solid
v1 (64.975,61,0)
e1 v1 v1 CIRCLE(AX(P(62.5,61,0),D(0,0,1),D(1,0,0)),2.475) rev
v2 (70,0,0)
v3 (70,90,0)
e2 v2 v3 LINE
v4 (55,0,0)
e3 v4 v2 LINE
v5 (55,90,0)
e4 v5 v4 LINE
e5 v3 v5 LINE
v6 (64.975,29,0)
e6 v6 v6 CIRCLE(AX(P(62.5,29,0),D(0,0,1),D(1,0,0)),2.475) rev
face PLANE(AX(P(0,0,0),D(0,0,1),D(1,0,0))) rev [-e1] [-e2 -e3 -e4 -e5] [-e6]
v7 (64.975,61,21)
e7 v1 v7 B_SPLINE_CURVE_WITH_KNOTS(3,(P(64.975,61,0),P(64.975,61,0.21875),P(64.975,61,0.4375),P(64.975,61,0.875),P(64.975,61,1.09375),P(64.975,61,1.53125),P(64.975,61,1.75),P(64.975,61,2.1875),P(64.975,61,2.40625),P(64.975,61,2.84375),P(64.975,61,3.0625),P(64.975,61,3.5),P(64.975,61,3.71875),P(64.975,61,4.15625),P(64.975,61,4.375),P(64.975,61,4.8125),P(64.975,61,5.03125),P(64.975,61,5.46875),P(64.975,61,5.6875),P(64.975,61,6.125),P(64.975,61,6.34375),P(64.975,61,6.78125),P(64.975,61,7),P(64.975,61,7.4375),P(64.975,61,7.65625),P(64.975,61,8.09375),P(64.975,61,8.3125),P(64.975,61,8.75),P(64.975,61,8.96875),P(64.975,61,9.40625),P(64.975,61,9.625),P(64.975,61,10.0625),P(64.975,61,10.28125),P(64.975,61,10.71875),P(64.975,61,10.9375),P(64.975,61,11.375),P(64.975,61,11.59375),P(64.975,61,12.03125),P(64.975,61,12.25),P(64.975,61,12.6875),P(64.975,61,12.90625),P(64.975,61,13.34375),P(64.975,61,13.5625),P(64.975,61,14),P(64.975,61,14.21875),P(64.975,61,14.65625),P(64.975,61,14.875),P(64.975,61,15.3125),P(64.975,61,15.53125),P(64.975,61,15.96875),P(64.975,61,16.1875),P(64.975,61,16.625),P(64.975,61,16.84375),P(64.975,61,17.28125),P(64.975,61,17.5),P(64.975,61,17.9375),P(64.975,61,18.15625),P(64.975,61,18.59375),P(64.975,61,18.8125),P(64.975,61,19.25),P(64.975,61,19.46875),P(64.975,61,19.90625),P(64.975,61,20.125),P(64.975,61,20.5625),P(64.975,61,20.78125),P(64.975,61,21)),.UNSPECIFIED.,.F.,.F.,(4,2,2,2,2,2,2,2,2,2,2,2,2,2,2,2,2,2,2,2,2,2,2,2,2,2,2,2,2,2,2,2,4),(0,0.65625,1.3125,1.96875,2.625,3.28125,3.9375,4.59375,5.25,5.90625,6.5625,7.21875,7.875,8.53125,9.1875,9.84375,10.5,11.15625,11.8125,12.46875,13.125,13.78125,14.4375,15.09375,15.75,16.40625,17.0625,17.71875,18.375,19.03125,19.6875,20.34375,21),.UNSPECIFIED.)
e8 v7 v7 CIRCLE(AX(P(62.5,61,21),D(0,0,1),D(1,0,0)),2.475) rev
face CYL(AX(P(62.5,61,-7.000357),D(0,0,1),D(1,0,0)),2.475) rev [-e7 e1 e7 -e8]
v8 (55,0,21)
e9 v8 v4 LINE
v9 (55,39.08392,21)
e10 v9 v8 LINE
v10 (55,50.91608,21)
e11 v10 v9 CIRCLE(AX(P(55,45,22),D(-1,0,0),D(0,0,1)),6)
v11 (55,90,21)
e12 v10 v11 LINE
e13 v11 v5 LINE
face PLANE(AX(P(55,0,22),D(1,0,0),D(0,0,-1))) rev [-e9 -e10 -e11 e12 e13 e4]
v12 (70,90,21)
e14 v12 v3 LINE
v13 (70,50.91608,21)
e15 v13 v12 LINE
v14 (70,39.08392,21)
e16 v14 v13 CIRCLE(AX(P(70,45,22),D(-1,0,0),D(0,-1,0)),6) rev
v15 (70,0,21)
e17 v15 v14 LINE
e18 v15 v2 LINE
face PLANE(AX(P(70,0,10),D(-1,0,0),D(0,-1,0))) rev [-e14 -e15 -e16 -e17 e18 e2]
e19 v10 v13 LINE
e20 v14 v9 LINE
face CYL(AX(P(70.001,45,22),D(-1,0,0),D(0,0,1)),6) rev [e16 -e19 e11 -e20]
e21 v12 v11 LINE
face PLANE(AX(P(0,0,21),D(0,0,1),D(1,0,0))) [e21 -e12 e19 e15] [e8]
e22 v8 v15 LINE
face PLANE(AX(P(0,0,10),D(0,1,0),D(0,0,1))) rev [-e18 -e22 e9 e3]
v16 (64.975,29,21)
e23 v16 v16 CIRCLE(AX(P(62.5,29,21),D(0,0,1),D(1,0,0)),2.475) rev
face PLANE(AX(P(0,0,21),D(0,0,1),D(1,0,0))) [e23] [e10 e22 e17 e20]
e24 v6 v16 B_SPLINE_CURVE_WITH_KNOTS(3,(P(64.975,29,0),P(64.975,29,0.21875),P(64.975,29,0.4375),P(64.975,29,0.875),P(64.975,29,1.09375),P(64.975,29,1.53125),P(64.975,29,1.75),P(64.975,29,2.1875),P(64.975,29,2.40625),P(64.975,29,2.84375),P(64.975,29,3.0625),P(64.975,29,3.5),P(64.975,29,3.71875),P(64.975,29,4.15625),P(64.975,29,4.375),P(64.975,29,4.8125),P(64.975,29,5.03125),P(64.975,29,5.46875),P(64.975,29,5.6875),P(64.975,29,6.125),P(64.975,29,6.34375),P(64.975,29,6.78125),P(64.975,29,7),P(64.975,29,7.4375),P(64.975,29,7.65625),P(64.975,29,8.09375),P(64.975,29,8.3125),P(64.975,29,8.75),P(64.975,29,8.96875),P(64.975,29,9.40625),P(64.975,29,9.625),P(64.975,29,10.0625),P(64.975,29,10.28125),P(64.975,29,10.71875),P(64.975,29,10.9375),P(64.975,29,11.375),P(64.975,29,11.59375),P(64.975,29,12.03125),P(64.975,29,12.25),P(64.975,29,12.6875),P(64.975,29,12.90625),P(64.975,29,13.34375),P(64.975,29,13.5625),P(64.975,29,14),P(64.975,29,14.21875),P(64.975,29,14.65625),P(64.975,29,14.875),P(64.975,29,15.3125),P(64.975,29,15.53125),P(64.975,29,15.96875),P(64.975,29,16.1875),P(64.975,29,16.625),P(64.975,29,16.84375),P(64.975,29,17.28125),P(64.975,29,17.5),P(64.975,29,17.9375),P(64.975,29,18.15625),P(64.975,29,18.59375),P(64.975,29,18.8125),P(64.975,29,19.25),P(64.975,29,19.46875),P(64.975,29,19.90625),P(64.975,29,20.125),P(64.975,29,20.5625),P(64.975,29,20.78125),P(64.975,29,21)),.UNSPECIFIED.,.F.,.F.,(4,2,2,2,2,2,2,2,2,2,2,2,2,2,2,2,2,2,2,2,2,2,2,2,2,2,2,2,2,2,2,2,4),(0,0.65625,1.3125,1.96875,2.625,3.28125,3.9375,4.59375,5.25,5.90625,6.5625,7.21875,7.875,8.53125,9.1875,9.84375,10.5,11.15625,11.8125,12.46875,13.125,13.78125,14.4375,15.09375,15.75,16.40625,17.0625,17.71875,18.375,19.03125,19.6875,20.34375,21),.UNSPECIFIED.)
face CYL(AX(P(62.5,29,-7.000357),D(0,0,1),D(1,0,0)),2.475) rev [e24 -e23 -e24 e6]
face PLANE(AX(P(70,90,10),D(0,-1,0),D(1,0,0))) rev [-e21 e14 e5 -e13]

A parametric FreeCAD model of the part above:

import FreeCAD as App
import Part
import Sketcher

V = App.Vector

doc = App.newDocument("Part")
body = doc.addObject("PartDesign::Body", "Body")

# Sketch on XY plane
sketch1 = doc.addObject("Sketcher::SketchObject", "Sketch")
body.addObject(sketch1)
sketch1.AttachmentSupport = (doc.XY_Plane, [""])
sketch1.MapMode = "FlatFace"
sketch1.addGeometry([
    Part.LineSegment(V(0, 90, 0), V(0, 0, 0)),
    Part.LineSegment(V(0, 0, 0), V(70, 0, 0)),
    Part.LineSegment(V(70, 0, 0), V(70, 90, 0)),
    Part.LineSegment(V(70, 90, 0), V(0, 90, 0)),
], False)
sketch1.addConstraint([
    Sketcher.Constraint("Coincident", 0, 2, 1, 1),
    Sketcher.Constraint("Coincident", 1, 2, 2, 1),
    Sketcher.Constraint("Coincident", 2, 2, 3, 1),
    Sketcher.Constraint("Coincident", 3, 2, 0, 1),
    Sketcher.Constraint("Vertical", 0),
    Sketcher.Constraint("Horizontal", 1),
    Sketcher.Constraint("Vertical", 2),
    Sketcher.Constraint("Horizontal", 3),
    Sketcher.Constraint("Coincident", 0, 2, -1, 1),
    Sketcher.Constraint("DistanceX", 1, 1, 1, 2, 70.0),
    Sketcher.Constraint("DistanceY", 0, 2, 0, 1, 90.0),
])
pad1 = doc.addObject("PartDesign::Pad", "Pad")
body.addObject(pad1)
pad1.Profile = sketch1
pad1.Length = 10

# Sketch on XY plane
sketch2 = doc.addObject("Sketcher::SketchObject", "Sketch001")
body.addObject(sketch2)
sketch2.AttachmentSupport = (doc.XY_Plane, [""])
sketch2.MapMode = "FlatFace"
sketch2.AttachmentOffset = App.Placement(V(0, 0, 10), App.Rotation())
sketch2.addGeometry([
    Part.LineSegment(V(55, 90, 0), V(55, 0, 0)),
    Part.LineSegment(V(55, 0, 0), V(70, 0, 0)),
    Part.LineSegment(V(70, 0, 0), V(70, 90, 0)),
    Part.LineSegment(V(70, 90, 0), V(55, 90, 0)),
], False)
sketch2.addConstraint([
    Sketcher.Constraint("Coincident", 0, 2, 1, 1),
    Sketcher.Constraint("Coincident", 1, 2, 2, 1),
    Sketcher.Constraint("Coincident", 2, 2, 3, 1),
    Sketcher.Constraint("Coincident", 3, 2, 0, 1),
    Sketcher.Constraint("Vertical", 0),
    Sketcher.Constraint("Horizontal", 1),
    Sketcher.Constraint("Vertical", 2),
    Sketcher.Constraint("Horizontal", 3),
    Sketcher.Constraint("PointOnObject", 0, 2, -1),
    Sketcher.Constraint("DistanceX", 1, 1, 1, 2, 15.0),
    Sketcher.Constraint("DistanceY", 0, 2, 0, 1, 90.0),
    Sketcher.Constraint("DistanceX", -1, 1, 0, 2, 55.0),
])
pad2 = doc.addObject("PartDesign::Pad", "Pad001")
body.addObject(pad2)
pad2.Profile = sketch2
pad2.Length = 12

# Sketch on XZ plane
sketch3 = doc.addObject("Sketcher::SketchObject", "Sketch002")
body.addObject(sketch3)
sketch3.AttachmentSupport = (doc.XZ_Plane, [""])
sketch3.MapMode = "FlatFace"
sketch3.AttachmentOffset = App.Placement(V(0, 0, -90), App.Rotation())
sketch3.addGeometry([
    Part.LineSegment(V(55, 10, 0), V(6, 10, 0)),
    Part.LineSegment(V(6, 10, 0), V(55, 21, 0)),
    Part.LineSegment(V(55, 21, 0), V(55, 10, 0)),
], False)
sketch3.addConstraint([
    Sketcher.Constraint("Coincident", 0, 2, 1, 1),
    Sketcher.Constraint("Coincident", 1, 2, 2, 1),
    Sketcher.Constraint("Coincident", 2, 2, 0, 1),
    Sketcher.Constraint("Horizontal", 0),
    Sketcher.Constraint("Vertical", 2),
    Sketcher.Constraint("DistanceX", 0, 2, 0, 1, 49.0),
    Sketcher.Constraint("DistanceY", 2, 2, 2, 1, 11.0),
    Sketcher.Constraint("DistanceX", -1, 1, 0, 2, 6.0),
    Sketcher.Constraint("DistanceY", -1, 1, 0, 2, 10.0),
])
pad3 = doc.addObject("PartDesign::Pad", "Pad002")
body.addObject(pad3)
pad3.Profile = sketch3
pad3.Length = 3

# Sketch on XZ plane
sketch4 = doc.addObject("Sketcher::SketchObject", "Sketch003")
body.addObject(sketch4)
sketch4.AttachmentSupport = (doc.XZ_Plane, [""])
sketch4.MapMode = "FlatFace"
sketch4.addGeometry([
    Part.LineSegment(V(55, 21, 0), V(6, 10, 0)),
    Part.LineSegment(V(6, 10, 0), V(55, 10, 0)),
    Part.LineSegment(V(55, 10, 0), V(55, 21, 0)),
], False)
sketch4.addConstraint([
    Sketcher.Constraint("Coincident", 0, 2, 1, 1),
    Sketcher.Constraint("Coincident", 1, 2, 2, 1),
    Sketcher.Constraint("Coincident", 2, 2, 0, 1),
    Sketcher.Constraint("Horizontal", 1),
    Sketcher.Constraint("Vertical", 2),
    Sketcher.Constraint("DistanceX", 1, 1, 1, 2, 49.0),
    Sketcher.Constraint("DistanceY", 2, 1, 2, 2, 11.0),
    Sketcher.Constraint("DistanceX", -1, 1, 0, 2, 6.0),
    Sketcher.Constraint("DistanceY", -1, 1, 0, 2, 10.0),
])
pad4 = doc.addObject("PartDesign::Pad", "Pad003")
body.addObject(pad4)
pad4.Profile = sketch4
pad4.Length = 3
pad4.Reversed = True

# Sketch on YZ plane
sketch5 = doc.addObject("Sketcher::SketchObject", "Sketch004")
body.addObject(sketch5)
sketch5.AttachmentSupport = (doc.YZ_Plane, [""])
sketch5.MapMode = "FlatFace"
sketch5.AttachmentOffset = App.Placement(V(0, 0, 55), App.Rotation())
sketch5.addGeometry(Part.Circle(V(45, 22, 0), V(0, 0, 1), 6), False)
sketch5.addConstraint([
    Sketcher.Constraint("Diameter", 0, 12.0),
    Sketcher.Constraint("DistanceX", -1, 1, 0, 3, 45.0),
    Sketcher.Constraint("DistanceY", -1, 1, 0, 3, 22.0),
])
pocket1 = doc.addObject("PartDesign::Pocket", "Pocket")
body.addObject(pocket1)
pocket1.Profile = sketch5
pocket1.Type = "UpToFirst"
pocket1.Reversed = True

# Sketch on XY plane
sketch6 = doc.addObject("Sketcher::SketchObject", "Sketch005")
body.addObject(sketch6)
sketch6.AttachmentSupport = (doc.XY_Plane, [""])
sketch6.MapMode = "FlatFace"
sketch6.AttachmentOffset = App.Placement(V(0, 0, 22), App.Rotation())
sketch6.addGeometry([
    Part.Circle(V(62.5, 61, 0), V(0, 0, 1), 2.5),
    Part.Circle(V(62.5, 29, 0), V(0, 0, 1), 2.5),
], False)
sketch6.addConstraint([
    Sketcher.Constraint("Equal", 0, 1),
    Sketcher.Constraint("Vertical", 0, 3, 1, 3),
    Sketcher.Constraint("Diameter", 0, 4.95),
    Sketcher.Constraint("DistanceY", -1, 1, 0, 3, 61.0),
    Sketcher.Constraint("DistanceY", -1, 1, 1, 3, 29.0),
    Sketcher.Constraint("DistanceX", -1, 1, 0, 3, 62.5),
])
pocket2 = doc.addObject("PartDesign::Pocket", "Pocket001")
body.addObject(pocket2)
pocket2.Profile = sketch6
pocket2.Length = 22

# Sketch on XY plane
sketch7 = doc.addObject("Sketcher::SketchObject", "Sketch006")
body.addObject(sketch7)
sketch7.AttachmentSupport = (doc.XY_Plane, [""])
sketch7.MapMode = "FlatFace"
sketch7.AttachmentOffset = App.Placement(V(0, 0, 10), App.Rotation())
sketch7.addGeometry([
    Part.Circle(V(3, 29, 0), V(0, 0, 1), 2),
    Part.Circle(V(3, 61, 0), V(0, 0, 1), 2),
], False)
sketch7.addConstraint([
    Sketcher.Constraint("Equal", 0, 1),
    Sketcher.Constraint("Vertical", 0, 3, 1, 3),
    Sketcher.Constraint("Diameter", 0, 3.95),
    Sketcher.Constraint("DistanceX", -1, 1, 0, 3, 3.0),
    Sketcher.Constraint("DistanceY", -1, 1, 0, 3, 29.0),
    Sketcher.Constraint("DistanceY", -1, 1, 1, 3, 61.0),
])
pocket3 = doc.addObject("PartDesign::Pocket", "Pocket002")
body.addObject(pocket3)
pocket3.Profile = sketch7
pocket3.Length = 10

# Sketch on XY plane
sketch8 = doc.addObject("Sketcher::SketchObject", "Sketch007")
body.addObject(sketch8)
sketch8.AttachmentSupport = (doc.XY_Plane, [""])
sketch8.MapMode = "FlatFace"
sketch8.AttachmentOffset = App.Placement(V(0, 0, 22), App.Rotation())
sketch8.addGeometry([
    Part.LineSegment(V(55, 90, 0), V(55, 0, 0)),
    Part.LineSegment(V(55, 0, 0), V(70, 0, 0)),
    Part.LineSegment(V(70, 0, 0), V(70, 90, 0)),
    Part.LineSegment(V(70, 90, 0), V(55, 90, 0)),
], False)
sketch8.addConstraint([
    Sketcher.Constraint("Coincident", 0, 2, 1, 1),
    Sketcher.Constraint("Coincident", 1, 2, 2, 1),
    Sketcher.Constraint("Coincident", 2, 2, 3, 1),
    Sketcher.Constraint("Coincident", 3, 2, 0, 1),
    Sketcher.Constraint("Vertical", 0),
    Sketcher.Constraint("Horizontal", 1),
    Sketcher.Constraint("Vertical", 2),
    Sketcher.Constraint("Horizontal", 3),
    Sketcher.Constraint("PointOnObject", 0, 2, -1),
    Sketcher.Constraint("DistanceX", 1, 1, 1, 2, 15.0),
    Sketcher.Constraint("DistanceY", 0, 2, 0, 1, 90.0),
    Sketcher.Constraint("DistanceX", -1, 1, 0, 2, 55.0),
])
pocket4 = doc.addObject("PartDesign::Pocket", "Pocket003")
body.addObject(pocket4)
pocket4.Profile = sketch8
pocket4.Length = 1

# Sketch on XY plane
sketch9 = doc.addObject("Sketcher::SketchObject", "Sketch008")
body.addObject(sketch9)
sketch9.AttachmentSupport = (doc.XY_Plane, [""])
sketch9.MapMode = "FlatFace"
sketch9.addGeometry([
    Part.LineSegment(V(55, 90, 0), V(55, 0, 0)),
    Part.LineSegment(V(55, 0, 0), V(0, 0, 0)),
    Part.LineSegment(V(0, 0, 0), V(0, 90, 0)),
    Part.LineSegment(V(0, 90, 0), V(55, 90, 0)),
], False)
sketch9.addConstraint([
    Sketcher.Constraint("Coincident", 0, 2, 1, 1),
    Sketcher.Constraint("Coincident", 1, 2, 2, 1),
    Sketcher.Constraint("Coincident", 2, 2, 3, 1),
    Sketcher.Constraint("Coincident", 3, 2, 0, 1),
    Sketcher.Constraint("Vertical", 0),
    Sketcher.Constraint("Horizontal", 1),
    Sketcher.Constraint("Vertical", 2),
    Sketcher.Constraint("Horizontal", 3),
    Sketcher.Constraint("Coincident", 1, 2, -1, 1),
    Sketcher.Constraint("DistanceX", 1, 2, 1, 1, 55.0),
    Sketcher.Constraint("DistanceY", 0, 2, 0, 1, 90.0),
])
pocket5 = doc.addObject("PartDesign::Pocket", "Pocket004")
body.addObject(pocket5)
pocket5.Profile = sketch9
pocket5.Type = "ThroughAll"
pocket5.Reversed = True

doc.recompute()
